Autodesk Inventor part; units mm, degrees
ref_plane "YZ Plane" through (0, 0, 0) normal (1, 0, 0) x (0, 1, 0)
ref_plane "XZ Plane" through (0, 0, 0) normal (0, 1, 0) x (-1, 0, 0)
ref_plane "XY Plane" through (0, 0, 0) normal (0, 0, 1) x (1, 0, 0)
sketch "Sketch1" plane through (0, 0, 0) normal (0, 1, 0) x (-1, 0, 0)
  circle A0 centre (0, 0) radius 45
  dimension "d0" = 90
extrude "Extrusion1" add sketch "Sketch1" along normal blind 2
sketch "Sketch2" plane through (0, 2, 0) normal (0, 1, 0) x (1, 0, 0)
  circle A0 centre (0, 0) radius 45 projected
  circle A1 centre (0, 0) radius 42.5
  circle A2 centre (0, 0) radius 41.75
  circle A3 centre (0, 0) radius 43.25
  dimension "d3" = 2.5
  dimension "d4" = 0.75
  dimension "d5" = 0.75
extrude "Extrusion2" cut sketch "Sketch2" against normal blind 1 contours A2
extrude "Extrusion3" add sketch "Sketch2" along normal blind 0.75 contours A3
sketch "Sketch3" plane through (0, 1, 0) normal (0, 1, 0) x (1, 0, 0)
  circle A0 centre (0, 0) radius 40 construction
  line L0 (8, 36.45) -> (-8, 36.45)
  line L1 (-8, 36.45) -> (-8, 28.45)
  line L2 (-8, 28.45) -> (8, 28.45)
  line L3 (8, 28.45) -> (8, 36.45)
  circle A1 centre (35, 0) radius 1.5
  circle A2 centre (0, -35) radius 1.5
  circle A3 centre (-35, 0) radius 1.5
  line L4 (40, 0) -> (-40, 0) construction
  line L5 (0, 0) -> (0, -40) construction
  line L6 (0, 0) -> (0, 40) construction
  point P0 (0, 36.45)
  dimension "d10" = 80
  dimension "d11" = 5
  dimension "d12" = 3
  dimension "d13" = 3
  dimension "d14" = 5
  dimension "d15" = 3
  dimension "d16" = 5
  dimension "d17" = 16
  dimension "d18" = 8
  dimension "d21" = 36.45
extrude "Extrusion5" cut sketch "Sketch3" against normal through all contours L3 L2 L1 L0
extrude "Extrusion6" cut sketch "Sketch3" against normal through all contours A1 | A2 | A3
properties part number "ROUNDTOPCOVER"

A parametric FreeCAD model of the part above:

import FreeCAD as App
import Part
import Sketcher

V = App.Vector
Q = App.Units.Quantity


def add_polygon(sketch, points):
    """Adds a closed chain of lines whose ends are joined by coincident constraints."""
    first, n = sketch.GeometryCount, len(points)
    for a, b in zip(points, points[1:] + points[:1]):
        sketch.addGeometry(Part.LineSegment(App.Vector(*a, 0), App.Vector(*b, 0)), False)
    for i in range(n):
        sketch.addConstraint(Sketcher.Constraint("Coincident", first + i, 2, first + (i + 1) % n, 1))

doc = App.newDocument("Part")
body = doc.addObject("PartDesign::Body", "Body")

sketch1 = doc.addObject("Sketcher::SketchObject", "Sketch")
body.addObject(sketch1)
sketch1.AttachmentSupport = (doc.XZ_Plane, [""])
sketch1.MapMode = "FlatFace"
sketch1.addGeometry(Part.Circle(V(0, 0, 0), V(0, 0, 1), 45), False)
sketch1.addConstraint(Sketcher.Constraint("Coincident", 0, 3, -1, 1))
sketch1.addConstraint(Sketcher.Constraint("Diameter", 0, Q("90 mm")))
pad1 = doc.addObject("PartDesign::Pad", "Pad")
body.addObject(pad1)
pad1.Profile = sketch1
pad1.Length = 2
pad1.Reversed = True

sketch2 = doc.addObject("Sketcher::SketchObject", "Sketch001")
body.addObject(sketch2)
sketch2.AttachmentSupport = (doc.XZ_Plane, [""])
sketch2.MapMode = "FlatFace"
sketch2.AttachmentOffset = App.Placement(V(0, 0, -2), App.Rotation())
sketch2.addGeometry(Part.Circle(V(0, 0, 0), V(0, 0, 1), 42), False)
sketch2.addConstraint(Sketcher.Constraint("Coincident", 0, 3, -1, 1))
sketch2.addConstraint(Sketcher.Constraint("Diameter", 0, Q("83.5 mm")))
pocket1 = doc.addObject("PartDesign::Pocket", "Pocket")
body.addObject(pocket1)
pocket1.Profile = sketch2
pocket1.Length = 1
pocket1.Reversed = True

sketch3 = doc.addObject("Sketcher::SketchObject", "Sketch002")
body.addObject(sketch3)
sketch3.AttachmentSupport = (doc.XZ_Plane, [""])
sketch3.MapMode = "FlatFace"
sketch3.AttachmentOffset = App.Placement(V(0, 0, -2), App.Rotation())
sketch3.addGeometry(Part.Circle(V(0, 0, 0), V(0, 0, 1), 43), False)
sketch3.addGeometry(Part.Circle(V(0, 0, 0), V(0, 0, 1), 42), False)
sketch3.addConstraint(Sketcher.Constraint("Coincident", 0, 3, -1, 1))
sketch3.addConstraint(Sketcher.Constraint("Coincident", 1, 3, -1, 1))
sketch3.addConstraint(Sketcher.Constraint("Diameter", 1, Q("85 mm")))
sketch3.addConstraint(Sketcher.Constraint("Diameter", 0, Q("86.5 mm")))
pad2 = doc.addObject("PartDesign::Pad", "Pad001")
body.addObject(pad2)
pad2.Profile = sketch3
pad2.Length = 0.75
pad2.Reversed = True

sketch4 = doc.addObject("Sketcher::SketchObject", "Sketch003")
body.addObject(sketch4)
sketch4.AttachmentSupport = (doc.XZ_Plane, [""])
sketch4.MapMode = "FlatFace"
sketch4.AttachmentOffset = App.Placement(V(0, 0, -1), App.Rotation())
add_polygon(sketch4, [(8, -28), (8, -36), (-8, -36), (-8, -28)])
sketch4.addConstraint(Sketcher.Constraint("Vertical", 0))
sketch4.addConstraint(Sketcher.Constraint("Horizontal", 1))
sketch4.addConstraint(Sketcher.Constraint("Vertical", 2))
sketch4.addConstraint(Sketcher.Constraint("Horizontal", 3))
sketch4.addConstraint(Sketcher.Constraint("DistanceX", 1, 2, 1, 1, Q("16 mm")))
sketch4.addConstraint(Sketcher.Constraint("DistanceY", 0, 2, 0, 1, Q("8 mm")))
sketch4.addConstraint(Sketcher.Constraint("DistanceX", -1, 1, 0, 2, Q("8 mm")))
sketch4.addConstraint(Sketcher.Constraint("DistanceY", 0, 2, -1, 1, Q("36.45 mm")))
pocket2 = doc.addObject("PartDesign::Pocket", "Pocket001")
body.addObject(pocket2)
pocket2.Profile = sketch4
pocket2.Type = "ThroughAll"
pocket2.Reversed = True

sketch5 = doc.addObject("Sketcher::SketchObject", "Sketch004")
body.addObject(sketch5)
sketch5.AttachmentSupport = (doc.XZ_Plane, [""])
sketch5.MapMode = "FlatFace"
sketch5.AttachmentOffset = App.Placement(V(0, 0, -1), App.Rotation())
sketch5.addGeometry(Part.Circle(V(35, 0, 0), V(0, 0, 1), 1.5), False)
sketch5.addGeometry(Part.Circle(V(0, 35, 0), V(0, 0, 1), 1.5), False)
sketch5.addGeometry(Part.Circle(V(-35, 0, 0), V(0, 0, 1), 1.5), False)
sketch5.addConstraint(Sketcher.Constraint("Equal", 0, 1))
sketch5.addConstraint(Sketcher.Constraint("Equal", 1, 2))
sketch5.addConstraint(Sketcher.Constraint("Symmetric", 0, 3, 2, 3, -1, 1))
sketch5.addConstraint(Sketcher.Constraint("PointOnObject", 0, 3, -1))
sketch5.addConstraint(Sketcher.Constraint("PointOnObject", 1, 3, -2))
sketch5.addConstraint(Sketcher.Constraint("Diameter", 0, Q("3 mm")))
sketch5.addConstraint(Sketcher.Constraint("DistanceX", -1, 1, 0, 3, Q("35 mm")))
sketch5.addConstraint(Sketcher.Constraint("DistanceY", -1, 1, 1, 3, Q("35 mm")))
pocket3 = doc.addObject("PartDesign::Pocket", "Pocket002")
body.addObject(pocket3)
pocket3.Profile = sketch5
pocket3.Type = "ThroughAll"
pocket3.Reversed = True

doc.recompute()
